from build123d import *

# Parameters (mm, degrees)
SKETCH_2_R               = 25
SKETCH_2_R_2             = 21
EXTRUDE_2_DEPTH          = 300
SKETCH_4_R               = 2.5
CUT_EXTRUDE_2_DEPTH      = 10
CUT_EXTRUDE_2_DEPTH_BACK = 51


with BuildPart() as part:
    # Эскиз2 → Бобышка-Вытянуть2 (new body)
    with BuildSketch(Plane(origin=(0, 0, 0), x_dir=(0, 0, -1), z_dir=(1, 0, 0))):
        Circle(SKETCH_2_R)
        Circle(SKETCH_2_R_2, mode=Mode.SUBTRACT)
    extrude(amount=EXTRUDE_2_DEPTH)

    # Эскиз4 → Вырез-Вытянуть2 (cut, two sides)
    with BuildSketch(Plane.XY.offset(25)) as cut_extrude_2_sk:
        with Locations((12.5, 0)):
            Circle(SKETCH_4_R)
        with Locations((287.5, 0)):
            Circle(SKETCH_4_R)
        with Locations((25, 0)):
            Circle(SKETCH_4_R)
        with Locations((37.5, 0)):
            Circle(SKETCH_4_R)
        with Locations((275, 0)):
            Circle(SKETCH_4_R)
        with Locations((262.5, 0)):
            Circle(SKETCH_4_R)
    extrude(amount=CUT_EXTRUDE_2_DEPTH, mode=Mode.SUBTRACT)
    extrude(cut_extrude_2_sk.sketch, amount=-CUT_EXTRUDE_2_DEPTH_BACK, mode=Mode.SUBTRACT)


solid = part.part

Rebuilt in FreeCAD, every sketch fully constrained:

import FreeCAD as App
import Part
import Sketcher
Q = App.Units.Quantity

doc = App.newDocument("Part")
body = doc.addObject("PartDesign::Body", "Body")

# Sketch on YZ plane
sketch1 = doc.addObject("Sketcher::SketchObject", "Sketch")
body.addObject(sketch1)
sketch1.AttachmentSupport = (doc.YZ_Plane, [""])
sketch1.MapMode = "FlatFace"
sketch1.addGeometry([
    Part.Circle(App.Vector(0, 0, 0), App.Vector(0, 0, 1), 25),
    Part.Circle(App.Vector(0, 0, 0), App.Vector(0, 0, 1), 21),
], False)
sketch1.addConstraint([
    Sketcher.Constraint("Coincident", 0, 3, -1, 1),
    Sketcher.Constraint("Coincident", 1, 3, -1, 1),
    Sketcher.Constraint("Diameter", 0, Q("50 mm")),
    Sketcher.Constraint("Diameter", 1, Q("42 mm")),
])
pad1 = doc.addObject("PartDesign::Pad", "Pad")
body.addObject(pad1)
pad1.Profile = sketch1
pad1.Length = 300

# Sketch on XY plane
sketch2 = doc.addObject("Sketcher::SketchObject", "Sketch001")
body.addObject(sketch2)
sketch2.AttachmentSupport = (doc.XY_Plane, [""])
sketch2.MapMode = "FlatFace"
sketch2.AttachmentOffset = App.Placement(App.Vector(0, 0, 25), App.Rotation())
sketch2.addGeometry([
    Part.Circle(App.Vector(12.5, 0, 0), App.Vector(0, 0, 1), 2.5),  # 0
    Part.Circle(App.Vector(287.5, 0, 0), App.Vector(0, 0, 1), 2.5),  # 1
    Part.Circle(App.Vector(25, 0, 0), App.Vector(0, 0, 1), 2.5),  # 2
    Part.Circle(App.Vector(37.5, 0, 0), App.Vector(0, 0, 1), 2.5),  # 3
    Part.Circle(App.Vector(275, 0, 0), App.Vector(0, 0, 1), 2.5),  # 4
    Part.Circle(App.Vector(262.5, 0, 0), App.Vector(0, 0, 1), 2.5),  # 5
], False)
sketch2.addConstraint([
    Sketcher.Constraint("Equal", 0, 1),
    Sketcher.Constraint("Equal", 1, 2),
    Sketcher.Constraint("Equal", 2, 3),
    Sketcher.Constraint("Equal", 3, 4),
    Sketcher.Constraint("Equal", 4, 5),
    Sketcher.Constraint("PointOnObject", 0, 3, -1),
    Sketcher.Constraint("PointOnObject", 1, 3, -1),
    Sketcher.Constraint("PointOnObject", 2, 3, -1),
    Sketcher.Constraint("PointOnObject", 3, 3, -1),
    Sketcher.Constraint("PointOnObject", 4, 3, -1),
    Sketcher.Constraint("PointOnObject", 5, 3, -1),
    Sketcher.Constraint("Diameter", 0, Q("5 mm")),
    Sketcher.Constraint("DistanceX", -1, 1, 2, 3, Q("25 mm")),
    Sketcher.Constraint("DistanceX", -1, 1, 4, 3, Q("275 mm")),
    Sketcher.Constraint("DistanceX", 0, 3, 1, 3, Q("275 mm")),
    Sketcher.Constraint("DistanceX", 0, 3, 3, 3, Q("25 mm")),
    Sketcher.Constraint("DistanceX", 5, 3, 1, 3, Q("25 mm")),
    Sketcher.Constraint("DistanceX", -1, 1, 0, 3, Q("12.5 mm")),
])
pocket1 = doc.addObject("PartDesign::Pocket", "Pocket")
body.addObject(pocket1)
pocket1.Profile = sketch2
pocket1.Type = "ThroughAll"
pocket1.Midplane = True

doc.recompute()
